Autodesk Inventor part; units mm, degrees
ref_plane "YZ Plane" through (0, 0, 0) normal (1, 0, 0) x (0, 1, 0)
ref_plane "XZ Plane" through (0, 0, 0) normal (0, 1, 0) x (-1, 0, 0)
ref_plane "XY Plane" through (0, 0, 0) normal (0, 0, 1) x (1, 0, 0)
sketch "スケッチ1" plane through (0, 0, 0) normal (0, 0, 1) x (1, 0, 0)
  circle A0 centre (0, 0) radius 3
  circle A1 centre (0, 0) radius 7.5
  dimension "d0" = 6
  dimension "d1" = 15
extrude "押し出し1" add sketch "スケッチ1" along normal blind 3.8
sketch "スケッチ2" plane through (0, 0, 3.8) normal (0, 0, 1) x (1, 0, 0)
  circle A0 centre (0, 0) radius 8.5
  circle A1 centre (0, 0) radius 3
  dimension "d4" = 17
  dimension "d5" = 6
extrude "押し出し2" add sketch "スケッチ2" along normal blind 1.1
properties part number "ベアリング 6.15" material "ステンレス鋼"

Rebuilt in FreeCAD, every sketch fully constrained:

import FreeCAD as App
import Part
import Sketcher
Q = App.Units.Quantity

doc = App.newDocument("Part")
body = doc.addObject("PartDesign::Body", "Body")

# Sketch on XY plane
sketch1 = doc.addObject("Sketcher::SketchObject", "Sketch")
body.addObject(sketch1)
sketch1.AttachmentSupport = (doc.XY_Plane, [""])
sketch1.MapMode = "FlatFace"
sketch1.addGeometry(Part.Circle(App.Vector(0, 0, 0), App.Vector(0, 0, 1), 7.5), False)
sketch1.addGeometry(Part.Circle(App.Vector(0, 0, 0), App.Vector(0, 0, 1), 3), False)
sketch1.addConstraint(Sketcher.Constraint("Coincident", 0, 3, -1, 1))
sketch1.addConstraint(Sketcher.Constraint("Coincident", 1, 3, -1, 1))
sketch1.addConstraint(Sketcher.Constraint("Diameter", 0, Q("15 mm")))
sketch1.addConstraint(Sketcher.Constraint("Diameter", 1, Q("6 mm")))
pad1 = doc.addObject("PartDesign::Pad", "Pad")
body.addObject(pad1)
pad1.Profile = sketch1
pad1.Length = 3.8

# Sketch on XY plane
sketch2 = doc.addObject("Sketcher::SketchObject", "Sketch001")
body.addObject(sketch2)
sketch2.AttachmentSupport = (doc.XY_Plane, [""])
sketch2.MapMode = "FlatFace"
sketch2.AttachmentOffset = App.Placement(App.Vector(0, 0, 3.8), App.Rotation())
sketch2.addGeometry(Part.Circle(App.Vector(0, 0, 0), App.Vector(0, 0, 1), 8.5), False)
sketch2.addGeometry(Part.Circle(App.Vector(0, 0, 0), App.Vector(0, 0, 1), 3), False)
sketch2.addConstraint(Sketcher.Constraint("Coincident", 0, 3, -1, 1))
sketch2.addConstraint(Sketcher.Constraint("Coincident", 1, 3, -1, 1))
sketch2.addConstraint(Sketcher.Constraint("Diameter", 0, Q("17 mm")))
sketch2.addConstraint(Sketcher.Constraint("Diameter", 1, Q("6 mm")))
pad2 = doc.addObject("PartDesign::Pad", "Pad001")
body.addObject(pad2)
pad2.Profile = sketch2
pad2.Length = 1.1

doc.recompute()
